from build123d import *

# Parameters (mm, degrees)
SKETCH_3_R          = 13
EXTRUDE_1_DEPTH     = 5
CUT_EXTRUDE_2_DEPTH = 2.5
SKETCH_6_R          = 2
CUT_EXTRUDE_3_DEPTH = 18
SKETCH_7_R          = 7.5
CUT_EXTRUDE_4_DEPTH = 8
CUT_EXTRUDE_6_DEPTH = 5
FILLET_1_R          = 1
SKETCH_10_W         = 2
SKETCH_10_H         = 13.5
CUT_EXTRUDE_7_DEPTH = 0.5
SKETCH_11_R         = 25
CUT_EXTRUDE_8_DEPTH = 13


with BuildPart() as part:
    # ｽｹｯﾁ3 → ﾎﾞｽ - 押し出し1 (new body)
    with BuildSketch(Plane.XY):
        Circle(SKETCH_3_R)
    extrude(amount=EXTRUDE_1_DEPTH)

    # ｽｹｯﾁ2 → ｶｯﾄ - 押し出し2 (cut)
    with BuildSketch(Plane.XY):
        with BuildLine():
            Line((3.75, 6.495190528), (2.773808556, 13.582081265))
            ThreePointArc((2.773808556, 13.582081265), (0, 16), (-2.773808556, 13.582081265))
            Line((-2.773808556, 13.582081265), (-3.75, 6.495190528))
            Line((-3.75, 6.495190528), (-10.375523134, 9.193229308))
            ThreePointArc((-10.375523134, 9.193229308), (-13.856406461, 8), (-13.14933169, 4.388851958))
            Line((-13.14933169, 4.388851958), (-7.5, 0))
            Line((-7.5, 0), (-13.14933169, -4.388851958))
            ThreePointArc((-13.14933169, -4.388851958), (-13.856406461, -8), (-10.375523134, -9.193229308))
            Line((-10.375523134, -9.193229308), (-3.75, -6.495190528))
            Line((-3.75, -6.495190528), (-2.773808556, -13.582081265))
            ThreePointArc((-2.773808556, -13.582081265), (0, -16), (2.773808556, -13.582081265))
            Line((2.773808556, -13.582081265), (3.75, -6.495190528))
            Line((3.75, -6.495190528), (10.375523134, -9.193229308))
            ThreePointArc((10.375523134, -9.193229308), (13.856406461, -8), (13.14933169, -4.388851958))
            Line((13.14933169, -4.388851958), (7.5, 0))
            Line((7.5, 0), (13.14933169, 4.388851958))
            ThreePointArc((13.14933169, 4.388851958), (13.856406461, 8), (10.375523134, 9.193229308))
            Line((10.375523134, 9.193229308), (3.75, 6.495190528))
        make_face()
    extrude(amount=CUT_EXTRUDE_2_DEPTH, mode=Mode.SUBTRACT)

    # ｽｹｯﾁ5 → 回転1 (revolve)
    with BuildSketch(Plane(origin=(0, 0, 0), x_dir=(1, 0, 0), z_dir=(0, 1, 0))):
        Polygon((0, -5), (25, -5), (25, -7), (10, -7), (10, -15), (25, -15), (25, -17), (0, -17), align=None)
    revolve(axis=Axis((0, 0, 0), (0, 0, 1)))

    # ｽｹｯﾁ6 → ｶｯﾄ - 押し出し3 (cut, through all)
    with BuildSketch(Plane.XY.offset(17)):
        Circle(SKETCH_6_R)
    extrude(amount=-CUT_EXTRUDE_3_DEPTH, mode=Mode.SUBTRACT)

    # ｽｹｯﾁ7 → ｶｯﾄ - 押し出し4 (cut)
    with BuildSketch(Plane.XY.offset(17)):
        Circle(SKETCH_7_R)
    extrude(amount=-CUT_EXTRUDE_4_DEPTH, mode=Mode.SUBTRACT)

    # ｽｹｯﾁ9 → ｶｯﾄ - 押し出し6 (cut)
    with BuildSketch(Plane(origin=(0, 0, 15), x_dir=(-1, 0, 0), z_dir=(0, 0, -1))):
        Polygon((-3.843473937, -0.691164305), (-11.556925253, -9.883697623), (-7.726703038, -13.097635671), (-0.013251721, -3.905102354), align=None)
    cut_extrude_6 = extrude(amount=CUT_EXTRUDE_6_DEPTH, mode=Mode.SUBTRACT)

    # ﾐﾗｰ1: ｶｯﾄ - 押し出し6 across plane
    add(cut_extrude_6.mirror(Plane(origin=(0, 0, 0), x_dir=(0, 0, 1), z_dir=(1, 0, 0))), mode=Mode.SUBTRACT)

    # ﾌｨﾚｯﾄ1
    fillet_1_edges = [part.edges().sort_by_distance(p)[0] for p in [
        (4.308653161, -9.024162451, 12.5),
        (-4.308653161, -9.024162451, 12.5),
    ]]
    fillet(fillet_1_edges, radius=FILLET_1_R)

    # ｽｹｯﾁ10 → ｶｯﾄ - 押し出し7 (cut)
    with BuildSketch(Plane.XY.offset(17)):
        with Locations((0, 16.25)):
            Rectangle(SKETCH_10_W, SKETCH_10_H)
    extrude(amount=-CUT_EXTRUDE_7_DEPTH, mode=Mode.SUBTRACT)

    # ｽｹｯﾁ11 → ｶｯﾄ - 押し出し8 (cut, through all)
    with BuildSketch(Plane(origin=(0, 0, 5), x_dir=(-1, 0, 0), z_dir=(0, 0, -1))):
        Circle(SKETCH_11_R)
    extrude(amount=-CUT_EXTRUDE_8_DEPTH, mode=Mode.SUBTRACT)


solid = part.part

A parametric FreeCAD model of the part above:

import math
import FreeCAD as App
import Part
import Sketcher
Q = App.Units.Quantity


def edges_at(feature, points):
    """Names of the edges that pass closest to the given points."""
    edges = feature.Shape.Edges
    near = lambda p: min(range(len(edges)), key=lambda i: edges[i].distToShape(Part.Vertex(*p))[0])
    return sorted({f"Edge{near(p) + 1}" for p in points})

doc = App.newDocument("Part")
body = doc.addObject("PartDesign::Body", "Body")

# Sketch on XY plane
sketch1 = doc.addObject("Sketcher::SketchObject", "Sketch")
body.addObject(sketch1)
sketch1.AttachmentSupport = (doc.XY_Plane, [""])
sketch1.MapMode = "FlatFace"
sketch1.addGeometry(Part.Circle(App.Vector(0, 0, 0), App.Vector(0, 0, 1), 13), False)
sketch1.addConstraint(Sketcher.Constraint("Coincident", 0, 3, -1, 1))
sketch1.addConstraint(Sketcher.Constraint("Diameter", 0, Q("26 mm")))
pad1 = doc.addObject("PartDesign::Pad", "Pad")
body.addObject(pad1)
pad1.Profile = sketch1
pad1.Length = 5

# Sketch on XY plane
sketch2 = doc.addObject("Sketcher::SketchObject", "Sketch001")
body.addObject(sketch2)
sketch2.AttachmentSupport = (doc.XY_Plane, [""])
sketch2.MapMode = "FlatFace"
sketch2.addGeometry(Part.LineSegment(App.Vector(3.8, 6.5, 0), App.Vector(2.8, 13.6, 0)), False)
sketch2.addGeometry(Part.ArcOfCircle(Part.Circle(App.Vector(0, 13.2, 0), App.Vector(0, 0, 1), 2.8), math.radians(8), math.radians(172)), False)
sketch2.addGeometry(Part.LineSegment(App.Vector(-2.8, 13.6, 0), App.Vector(-3.8, 6.5, 0)), False)
sketch2.addGeometry(Part.LineSegment(App.Vector(-3.8, 6.5, 0), App.Vector(-10.4, 9.2, 0)), False)
sketch2.addGeometry(Part.ArcOfCircle(Part.Circle(App.Vector(-11.4, 6.6, 0), App.Vector(0, 0, 1), 2.8), math.radians(68), math.radians(232)), False)
sketch2.addGeometry(Part.LineSegment(App.Vector(-13.1, 4.4, 0), App.Vector(-7.5, 0, 0)), False)
sketch2.addGeometry(Part.LineSegment(App.Vector(-7.5, 0, 0), App.Vector(-13.1, -4.4, 0)), False)
sketch2.addGeometry(Part.ArcOfCircle(Part.Circle(App.Vector(-11.4, -6.6, 0), App.Vector(0, 0, 1), 2.8), math.radians(128), math.radians(292)), False)
sketch2.addGeometry(Part.LineSegment(App.Vector(-10.4, -9.2, 0), App.Vector(-3.8, -6.5, 0)), False)
sketch2.addGeometry(Part.LineSegment(App.Vector(-3.8, -6.5, 0), App.Vector(-2.8, -13.6, 0)), False)
sketch2.addGeometry(Part.ArcOfCircle(Part.Circle(App.Vector(0, -13.2, 0), App.Vector(0, 0, 1), 2.8), math.radians(-172), math.radians(-8)), False)
sketch2.addGeometry(Part.LineSegment(App.Vector(2.8, -13.6, 0), App.Vector(3.8, -6.5, 0)), False)
sketch2.addGeometry(Part.LineSegment(App.Vector(3.8, -6.5, 0), App.Vector(10.4, -9.2, 0)), False)
sketch2.addGeometry(Part.ArcOfCircle(Part.Circle(App.Vector(11.4, -6.6, 0), App.Vector(0, 0, 1), 2.8), math.radians(-112), math.radians(52)), False)
sketch2.addGeometry(Part.LineSegment(App.Vector(13.1, -4.4, 0), App.Vector(7.5, 0, 0)), False)
sketch2.addGeometry(Part.LineSegment(App.Vector(7.5, 0, 0), App.Vector(13.1, 4.4, 0)), False)
sketch2.addGeometry(Part.ArcOfCircle(Part.Circle(App.Vector(11.4, 6.6, 0), App.Vector(0, 0, 1), 2.8), math.radians(-52), math.radians(112)), False)
sketch2.addGeometry(Part.LineSegment(App.Vector(10.4, 9.2, 0), App.Vector(3.8, 6.5, 0)), False)
sketch2.addConstraint(Sketcher.Constraint("Tangent", 0, 2, 1, 1))
sketch2.addConstraint(Sketcher.Constraint("Tangent", 1, 2, 2, 1))
sketch2.addConstraint(Sketcher.Constraint("Coincident", 2, 2, 3, 1))
sketch2.addConstraint(Sketcher.Constraint("Tangent", 3, 2, 4, 1))
sketch2.addConstraint(Sketcher.Constraint("Tangent", 4, 2, 5, 1))
sketch2.addConstraint(Sketcher.Constraint("Coincident", 5, 2, 6, 1))
sketch2.addConstraint(Sketcher.Constraint("Tangent", 6, 2, 7, 1))
sketch2.addConstraint(Sketcher.Constraint("Tangent", 7, 2, 8, 1))
sketch2.addConstraint(Sketcher.Constraint("Coincident", 8, 2, 9, 1))
sketch2.addConstraint(Sketcher.Constraint("Tangent", 9, 2, 10, 1))
sketch2.addConstraint(Sketcher.Constraint("Tangent", 10, 2, 11, 1))
sketch2.addConstraint(Sketcher.Constraint("Coincident", 11, 2, 12, 1))
sketch2.addConstraint(Sketcher.Constraint("Tangent", 12, 2, 13, 1))
sketch2.addConstraint(Sketcher.Constraint("Tangent", 13, 2, 14, 1))
sketch2.addConstraint(Sketcher.Constraint("Coincident", 14, 2, 15, 1))
sketch2.addConstraint(Sketcher.Constraint("Tangent", 15, 2, 16, 1))
sketch2.addConstraint(Sketcher.Constraint("Tangent", 16, 2, 17, 1))
sketch2.addConstraint(Sketcher.Constraint("Coincident", 17, 2, 0, 1))
sketch2.addConstraint(Sketcher.Constraint("Equal", 1, 4))
sketch2.addConstraint(Sketcher.Constraint("Equal", 4, 7))
sketch2.addConstraint(Sketcher.Constraint("Equal", 7, 10))
sketch2.addConstraint(Sketcher.Constraint("Equal", 10, 13))
sketch2.addConstraint(Sketcher.Constraint("Equal", 13, 16))
sketch2.addConstraint(Sketcher.Constraint("Symmetric", 1, 3, 10, 3, -1, 1))
sketch2.addConstraint(Sketcher.Constraint("Symmetric", 4, 3, 13, 3, -1, 1))
sketch2.addConstraint(Sketcher.Constraint("Symmetric", 7, 3, 16, 3, -1, 1))
sketch2.addConstraint(Sketcher.Constraint("Symmetric", 2, 2, 11, 2, -1, 1))
sketch2.addConstraint(Sketcher.Constraint("Symmetric", 5, 2, 14, 2, -1, 1))
sketch2.addConstraint(Sketcher.Constraint("Symmetric", 8, 2, 17, 2, -1, 1))
sketch2.addConstraint(Sketcher.Constraint("Symmetric", 7, 3, 13, 3, -2))
sketch2.addConstraint(Sketcher.Constraint("Symmetric", 0, 2, 1, 2, -2))
sketch2.addConstraint(Sketcher.Constraint("PointOnObject", 5, 2, -1))
sketch2.addConstraint(Sketcher.Constraint("Horizontal", 8, 2, 11, 2))
sketch2.addConstraint(Sketcher.Constraint("Equal", 2, 3))
sketch2.addConstraint(Sketcher.Constraint("Equal", 3, 5))
sketch2.addConstraint(Sketcher.Constraint("Radius", 1, Q("2.8 mm")))
sketch2.addConstraint(Sketcher.Constraint("DistanceY", -1, 1, 1, 3, Q("13.2 mm")))
sketch2.addConstraint(Sketcher.Constraint("DistanceY", -1, 1, 4, 3, Q("6.6 mm")))
sketch2.addConstraint(Sketcher.Constraint("DistanceX", 5, 2, -1, 1, Q("7.5 mm")))
sketch2.addConstraint(Sketcher.Constraint("DistanceX", 8, 2, 11, 2, Q("7.5 mm")))
pocket1 = doc.addObject("PartDesign::Pocket", "Pocket")
body.addObject(pocket1)
pocket1.Profile = sketch2
pocket1.Length = 2.5
pocket1.Reversed = True

# Sketch on XZ plane
sketch3 = doc.addObject("Sketcher::SketchObject", "Sketch002")
body.addObject(sketch3)
sketch3.AttachmentSupport = (doc.XZ_Plane, [""])
sketch3.MapMode = "FlatFace"
sketch3.addGeometry(Part.LineSegment(App.Vector(25, 5, 0), App.Vector(0, 5, 0)), False)
sketch3.addGeometry(Part.LineSegment(App.Vector(0, 5, 0), App.Vector(0, 17, 0)), False)
sketch3.addGeometry(Part.LineSegment(App.Vector(0, 17, 0), App.Vector(25, 17, 0)), False)
sketch3.addGeometry(Part.LineSegment(App.Vector(25, 17, 0), App.Vector(25, 15, 0)), False)
sketch3.addGeometry(Part.LineSegment(App.Vector(25, 15, 0), App.Vector(10, 15, 0)), False)
sketch3.addGeometry(Part.LineSegment(App.Vector(10, 15, 0), App.Vector(10, 7, 0)), False)
sketch3.addGeometry(Part.LineSegment(App.Vector(10, 7, 0), App.Vector(25, 7, 0)), False)
sketch3.addGeometry(Part.LineSegment(App.Vector(25, 7, 0), App.Vector(25, 5, 0)), False)
sketch3.addConstraint(Sketcher.Constraint("Coincident", 0, 2, 1, 1))
sketch3.addConstraint(Sketcher.Constraint("Coincident", 1, 2, 2, 1))
sketch3.addConstraint(Sketcher.Constraint("Coincident", 2, 2, 3, 1))
sketch3.addConstraint(Sketcher.Constraint("Coincident", 3, 2, 4, 1))
sketch3.addConstraint(Sketcher.Constraint("Coincident", 4, 2, 5, 1))
sketch3.addConstraint(Sketcher.Constraint("Coincident", 5, 2, 6, 1))
sketch3.addConstraint(Sketcher.Constraint("Coincident", 6, 2, 7, 1))
sketch3.addConstraint(Sketcher.Constraint("Coincident", 7, 2, 0, 1))
sketch3.addConstraint(Sketcher.Constraint("Horizontal", 0))
sketch3.addConstraint(Sketcher.Constraint("Vertical", 1))
sketch3.addConstraint(Sketcher.Constraint("Horizontal", 2))
sketch3.addConstraint(Sketcher.Constraint("Vertical", 3))
sketch3.addConstraint(Sketcher.Constraint("Horizontal", 4))
sketch3.addConstraint(Sketcher.Constraint("Vertical", 5))
sketch3.addConstraint(Sketcher.Constraint("Horizontal", 6))
sketch3.addConstraint(Sketcher.Constraint("Vertical", 7))
sketch3.addConstraint(Sketcher.Constraint("PointOnObject", 0, 2, -2))
sketch3.addConstraint(Sketcher.Constraint("Vertical", 3, 2, 6, 2))
sketch3.addConstraint(Sketcher.Constraint("Equal", 3, 7))
sketch3.addConstraint(Sketcher.Constraint("DistanceX", 0, 2, 0, 1, Q("25 mm")))
sketch3.addConstraint(Sketcher.Constraint("DistanceX", 4, 2, 4, 1, Q("15 mm")))
sketch3.addConstraint(Sketcher.Constraint("DistanceY", 1, 1, 1, 2, Q("12 mm")))
sketch3.addConstraint(Sketcher.Constraint("DistanceY", 3, 2, 3, 1, Q("2 mm")))
sketch3.addConstraint(Sketcher.Constraint("DistanceY", -1, 1, 0, 2, Q("5 mm")))
revolution = doc.addObject("PartDesign::Revolution", "Revolution")
body.addObject(revolution)
revolution.Profile = sketch3
revolution.ReferenceAxis = (sketch3, ["V_Axis"])
revolution.Angle = 360

# Sketch on XY plane
sketch4 = doc.addObject("Sketcher::SketchObject", "Sketch003")
body.addObject(sketch4)
sketch4.AttachmentSupport = (doc.XY_Plane, [""])
sketch4.MapMode = "FlatFace"
sketch4.AttachmentOffset = App.Placement(App.Vector(0, 0, 17), App.Rotation())
sketch4.addGeometry(Part.Circle(App.Vector(0, 0, 0), App.Vector(0, 0, 1), 2), False)
sketch4.addConstraint(Sketcher.Constraint("Coincident", 0, 3, -1, 1))
sketch4.addConstraint(Sketcher.Constraint("Diameter", 0, Q("4 mm")))
pocket2 = doc.addObject("PartDesign::Pocket", "Pocket001")
body.addObject(pocket2)
pocket2.Profile = sketch4
pocket2.Type = "ThroughAll"

# Sketch on XY plane
sketch5 = doc.addObject("Sketcher::SketchObject", "Sketch004")
body.addObject(sketch5)
sketch5.AttachmentSupport = (doc.XY_Plane, [""])
sketch5.MapMode = "FlatFace"
sketch5.AttachmentOffset = App.Placement(App.Vector(0, 0, 17), App.Rotation())
sketch5.addGeometry(Part.Circle(App.Vector(0, 0, 0), App.Vector(0, 0, 1), 8), False)
sketch5.addConstraint(Sketcher.Constraint("Coincident", 0, 3, -1, 1))
sketch5.addConstraint(Sketcher.Constraint("Diameter", 0, Q("15 mm")))
pocket3 = doc.addObject("PartDesign::Pocket", "Pocket002")
body.addObject(pocket3)
pocket3.Profile = sketch5
pocket3.Length = 8

# Sketch on XY plane
sketch6 = doc.addObject("Sketcher::SketchObject", "Sketch005")
body.addObject(sketch6)
sketch6.AttachmentSupport = (doc.XY_Plane, [""])
sketch6.MapMode = "FlatFace"
sketch6.AttachmentOffset = App.Placement(App.Vector(0, 0, 15), App.Rotation())
sketch6.addGeometry(Part.LineSegment(App.Vector(3.8, -0.7, 0), App.Vector(11.6, -9.9, 0)), False)
sketch6.addGeometry(Part.LineSegment(App.Vector(11.6, -9.9, 0), App.Vector(7.7, -13.1, 0)), False)
sketch6.addGeometry(Part.LineSegment(App.Vector(7.7, -13.1, 0), App.Vector(0, -3.9, 0)), False)
sketch6.addGeometry(Part.LineSegment(App.Vector(0, -3.9, 0), App.Vector(3.8, -0.7, 0)), False)
sketch6.addConstraint(Sketcher.Constraint("Coincident", 0, 2, 1, 1))
sketch6.addConstraint(Sketcher.Constraint("Coincident", 1, 2, 2, 1))
sketch6.addConstraint(Sketcher.Constraint("Coincident", 2, 2, 3, 1))
sketch6.addConstraint(Sketcher.Constraint("Coincident", 3, 2, 0, 1))
sketch6.addConstraint(Sketcher.Constraint("Perpendicular", 0, 1))
sketch6.addConstraint(Sketcher.Constraint("Perpendicular", 1, 2))
sketch6.addConstraint(Sketcher.Constraint("Perpendicular", 2, 3))
sketch6.addConstraint(Sketcher.Constraint("Angle", 0, Q("-50 deg")))
sketch6.addConstraint(Sketcher.Constraint("Distance", 0, Q("12 mm")))
sketch6.addConstraint(Sketcher.Constraint("Distance", 1, Q("5 mm")))
sketch6.addConstraint(Sketcher.Constraint("DistanceX", -1, 1, 2, 2, Q("0.013252 mm")))
sketch6.addConstraint(Sketcher.Constraint("DistanceY", 0, 2, -1, 1, Q("9.883698 mm")))
pocket4 = doc.addObject("PartDesign::Pocket", "Pocket003")
body.addObject(pocket4)
pocket4.Profile = sketch6
pocket4.Length = 5
doc.recompute()

mirrored = doc.addObject("PartDesign::Mirrored", "Mirrored")
body.addObject(mirrored)
mirrored.Originals = [pocket4]
mirrored.MirrorPlane = (doc.YZ_Plane, [""])
body.Tip = mirrored
doc.recompute()

fillet = doc.addObject("PartDesign::Fillet", "Fillet")
body.addObject(fillet)
fillet.Base = (mirrored, edges_at(mirrored, [(4.309, -9.024, 12.5), (-4.309, -9.024, 12.5)]))
fillet.Radius = 1

# Sketch on XY plane
sketch7 = doc.addObject("Sketcher::SketchObject", "Sketch006")
body.addObject(sketch7)
sketch7.AttachmentSupport = (doc.XY_Plane, [""])
sketch7.MapMode = "FlatFace"
sketch7.AttachmentOffset = App.Placement(App.Vector(0, 0, 17), App.Rotation())
sketch7.addGeometry(Part.LineSegment(App.Vector(-1, 23, 0), App.Vector(-1, 9.5, 0)), False)
sketch7.addGeometry(Part.LineSegment(App.Vector(-1, 9.5, 0), App.Vector(1, 9.5, 0)), False)
sketch7.addGeometry(Part.LineSegment(App.Vector(1, 9.5, 0), App.Vector(1, 23, 0)), False)
sketch7.addGeometry(Part.LineSegment(App.Vector(1, 23, 0), App.Vector(-1, 23, 0)), False)
sketch7.addConstraint(Sketcher.Constraint("Coincident", 0, 2, 1, 1))
sketch7.addConstraint(Sketcher.Constraint("Coincident", 1, 2, 2, 1))
sketch7.addConstraint(Sketcher.Constraint("Coincident", 2, 2, 3, 1))
sketch7.addConstraint(Sketcher.Constraint("Coincident", 3, 2, 0, 1))
sketch7.addConstraint(Sketcher.Constraint("Vertical", 0))
sketch7.addConstraint(Sketcher.Constraint("Horizontal", 1))
sketch7.addConstraint(Sketcher.Constraint("Vertical", 2))
sketch7.addConstraint(Sketcher.Constraint("Horizontal", 3))
sketch7.addConstraint(Sketcher.Constraint("DistanceX", 1, 1, 1, 2, Q("2 mm")))
sketch7.addConstraint(Sketcher.Constraint("DistanceY", 0, 2, 0, 1, Q("13.5 mm")))
sketch7.addConstraint(Sketcher.Constraint("DistanceX", 0, 2, -1, 1, Q("1 mm")))
sketch7.addConstraint(Sketcher.Constraint("DistanceY", -1, 1, 2, 2, Q("23 mm")))
pocket5 = doc.addObject("PartDesign::Pocket", "Pocket004")
body.addObject(pocket5)
pocket5.Profile = sketch7
pocket5.Length = 0.5

# Sketch on XY plane
sketch8 = doc.addObject("Sketcher::SketchObject", "Sketch007")
body.addObject(sketch8)
sketch8.AttachmentSupport = (doc.XY_Plane, [""])
sketch8.MapMode = "FlatFace"
sketch8.AttachmentOffset = App.Placement(App.Vector(0, 0, 5), App.Rotation())
sketch8.addGeometry(Part.Circle(App.Vector(0, 0, 0), App.Vector(0, 0, 1), 25), False)
sketch8.addConstraint(Sketcher.Constraint("Coincident", 0, 3, -1, 1))
sketch8.addConstraint(Sketcher.Constraint("Diameter", 0, Q("50 mm")))
pocket6 = doc.addObject("PartDesign::Pocket", "Pocket005")
body.addObject(pocket6)
pocket6.Profile = sketch8
pocket6.Type = "ThroughAll"
pocket6.Reversed = True

doc.recompute()
